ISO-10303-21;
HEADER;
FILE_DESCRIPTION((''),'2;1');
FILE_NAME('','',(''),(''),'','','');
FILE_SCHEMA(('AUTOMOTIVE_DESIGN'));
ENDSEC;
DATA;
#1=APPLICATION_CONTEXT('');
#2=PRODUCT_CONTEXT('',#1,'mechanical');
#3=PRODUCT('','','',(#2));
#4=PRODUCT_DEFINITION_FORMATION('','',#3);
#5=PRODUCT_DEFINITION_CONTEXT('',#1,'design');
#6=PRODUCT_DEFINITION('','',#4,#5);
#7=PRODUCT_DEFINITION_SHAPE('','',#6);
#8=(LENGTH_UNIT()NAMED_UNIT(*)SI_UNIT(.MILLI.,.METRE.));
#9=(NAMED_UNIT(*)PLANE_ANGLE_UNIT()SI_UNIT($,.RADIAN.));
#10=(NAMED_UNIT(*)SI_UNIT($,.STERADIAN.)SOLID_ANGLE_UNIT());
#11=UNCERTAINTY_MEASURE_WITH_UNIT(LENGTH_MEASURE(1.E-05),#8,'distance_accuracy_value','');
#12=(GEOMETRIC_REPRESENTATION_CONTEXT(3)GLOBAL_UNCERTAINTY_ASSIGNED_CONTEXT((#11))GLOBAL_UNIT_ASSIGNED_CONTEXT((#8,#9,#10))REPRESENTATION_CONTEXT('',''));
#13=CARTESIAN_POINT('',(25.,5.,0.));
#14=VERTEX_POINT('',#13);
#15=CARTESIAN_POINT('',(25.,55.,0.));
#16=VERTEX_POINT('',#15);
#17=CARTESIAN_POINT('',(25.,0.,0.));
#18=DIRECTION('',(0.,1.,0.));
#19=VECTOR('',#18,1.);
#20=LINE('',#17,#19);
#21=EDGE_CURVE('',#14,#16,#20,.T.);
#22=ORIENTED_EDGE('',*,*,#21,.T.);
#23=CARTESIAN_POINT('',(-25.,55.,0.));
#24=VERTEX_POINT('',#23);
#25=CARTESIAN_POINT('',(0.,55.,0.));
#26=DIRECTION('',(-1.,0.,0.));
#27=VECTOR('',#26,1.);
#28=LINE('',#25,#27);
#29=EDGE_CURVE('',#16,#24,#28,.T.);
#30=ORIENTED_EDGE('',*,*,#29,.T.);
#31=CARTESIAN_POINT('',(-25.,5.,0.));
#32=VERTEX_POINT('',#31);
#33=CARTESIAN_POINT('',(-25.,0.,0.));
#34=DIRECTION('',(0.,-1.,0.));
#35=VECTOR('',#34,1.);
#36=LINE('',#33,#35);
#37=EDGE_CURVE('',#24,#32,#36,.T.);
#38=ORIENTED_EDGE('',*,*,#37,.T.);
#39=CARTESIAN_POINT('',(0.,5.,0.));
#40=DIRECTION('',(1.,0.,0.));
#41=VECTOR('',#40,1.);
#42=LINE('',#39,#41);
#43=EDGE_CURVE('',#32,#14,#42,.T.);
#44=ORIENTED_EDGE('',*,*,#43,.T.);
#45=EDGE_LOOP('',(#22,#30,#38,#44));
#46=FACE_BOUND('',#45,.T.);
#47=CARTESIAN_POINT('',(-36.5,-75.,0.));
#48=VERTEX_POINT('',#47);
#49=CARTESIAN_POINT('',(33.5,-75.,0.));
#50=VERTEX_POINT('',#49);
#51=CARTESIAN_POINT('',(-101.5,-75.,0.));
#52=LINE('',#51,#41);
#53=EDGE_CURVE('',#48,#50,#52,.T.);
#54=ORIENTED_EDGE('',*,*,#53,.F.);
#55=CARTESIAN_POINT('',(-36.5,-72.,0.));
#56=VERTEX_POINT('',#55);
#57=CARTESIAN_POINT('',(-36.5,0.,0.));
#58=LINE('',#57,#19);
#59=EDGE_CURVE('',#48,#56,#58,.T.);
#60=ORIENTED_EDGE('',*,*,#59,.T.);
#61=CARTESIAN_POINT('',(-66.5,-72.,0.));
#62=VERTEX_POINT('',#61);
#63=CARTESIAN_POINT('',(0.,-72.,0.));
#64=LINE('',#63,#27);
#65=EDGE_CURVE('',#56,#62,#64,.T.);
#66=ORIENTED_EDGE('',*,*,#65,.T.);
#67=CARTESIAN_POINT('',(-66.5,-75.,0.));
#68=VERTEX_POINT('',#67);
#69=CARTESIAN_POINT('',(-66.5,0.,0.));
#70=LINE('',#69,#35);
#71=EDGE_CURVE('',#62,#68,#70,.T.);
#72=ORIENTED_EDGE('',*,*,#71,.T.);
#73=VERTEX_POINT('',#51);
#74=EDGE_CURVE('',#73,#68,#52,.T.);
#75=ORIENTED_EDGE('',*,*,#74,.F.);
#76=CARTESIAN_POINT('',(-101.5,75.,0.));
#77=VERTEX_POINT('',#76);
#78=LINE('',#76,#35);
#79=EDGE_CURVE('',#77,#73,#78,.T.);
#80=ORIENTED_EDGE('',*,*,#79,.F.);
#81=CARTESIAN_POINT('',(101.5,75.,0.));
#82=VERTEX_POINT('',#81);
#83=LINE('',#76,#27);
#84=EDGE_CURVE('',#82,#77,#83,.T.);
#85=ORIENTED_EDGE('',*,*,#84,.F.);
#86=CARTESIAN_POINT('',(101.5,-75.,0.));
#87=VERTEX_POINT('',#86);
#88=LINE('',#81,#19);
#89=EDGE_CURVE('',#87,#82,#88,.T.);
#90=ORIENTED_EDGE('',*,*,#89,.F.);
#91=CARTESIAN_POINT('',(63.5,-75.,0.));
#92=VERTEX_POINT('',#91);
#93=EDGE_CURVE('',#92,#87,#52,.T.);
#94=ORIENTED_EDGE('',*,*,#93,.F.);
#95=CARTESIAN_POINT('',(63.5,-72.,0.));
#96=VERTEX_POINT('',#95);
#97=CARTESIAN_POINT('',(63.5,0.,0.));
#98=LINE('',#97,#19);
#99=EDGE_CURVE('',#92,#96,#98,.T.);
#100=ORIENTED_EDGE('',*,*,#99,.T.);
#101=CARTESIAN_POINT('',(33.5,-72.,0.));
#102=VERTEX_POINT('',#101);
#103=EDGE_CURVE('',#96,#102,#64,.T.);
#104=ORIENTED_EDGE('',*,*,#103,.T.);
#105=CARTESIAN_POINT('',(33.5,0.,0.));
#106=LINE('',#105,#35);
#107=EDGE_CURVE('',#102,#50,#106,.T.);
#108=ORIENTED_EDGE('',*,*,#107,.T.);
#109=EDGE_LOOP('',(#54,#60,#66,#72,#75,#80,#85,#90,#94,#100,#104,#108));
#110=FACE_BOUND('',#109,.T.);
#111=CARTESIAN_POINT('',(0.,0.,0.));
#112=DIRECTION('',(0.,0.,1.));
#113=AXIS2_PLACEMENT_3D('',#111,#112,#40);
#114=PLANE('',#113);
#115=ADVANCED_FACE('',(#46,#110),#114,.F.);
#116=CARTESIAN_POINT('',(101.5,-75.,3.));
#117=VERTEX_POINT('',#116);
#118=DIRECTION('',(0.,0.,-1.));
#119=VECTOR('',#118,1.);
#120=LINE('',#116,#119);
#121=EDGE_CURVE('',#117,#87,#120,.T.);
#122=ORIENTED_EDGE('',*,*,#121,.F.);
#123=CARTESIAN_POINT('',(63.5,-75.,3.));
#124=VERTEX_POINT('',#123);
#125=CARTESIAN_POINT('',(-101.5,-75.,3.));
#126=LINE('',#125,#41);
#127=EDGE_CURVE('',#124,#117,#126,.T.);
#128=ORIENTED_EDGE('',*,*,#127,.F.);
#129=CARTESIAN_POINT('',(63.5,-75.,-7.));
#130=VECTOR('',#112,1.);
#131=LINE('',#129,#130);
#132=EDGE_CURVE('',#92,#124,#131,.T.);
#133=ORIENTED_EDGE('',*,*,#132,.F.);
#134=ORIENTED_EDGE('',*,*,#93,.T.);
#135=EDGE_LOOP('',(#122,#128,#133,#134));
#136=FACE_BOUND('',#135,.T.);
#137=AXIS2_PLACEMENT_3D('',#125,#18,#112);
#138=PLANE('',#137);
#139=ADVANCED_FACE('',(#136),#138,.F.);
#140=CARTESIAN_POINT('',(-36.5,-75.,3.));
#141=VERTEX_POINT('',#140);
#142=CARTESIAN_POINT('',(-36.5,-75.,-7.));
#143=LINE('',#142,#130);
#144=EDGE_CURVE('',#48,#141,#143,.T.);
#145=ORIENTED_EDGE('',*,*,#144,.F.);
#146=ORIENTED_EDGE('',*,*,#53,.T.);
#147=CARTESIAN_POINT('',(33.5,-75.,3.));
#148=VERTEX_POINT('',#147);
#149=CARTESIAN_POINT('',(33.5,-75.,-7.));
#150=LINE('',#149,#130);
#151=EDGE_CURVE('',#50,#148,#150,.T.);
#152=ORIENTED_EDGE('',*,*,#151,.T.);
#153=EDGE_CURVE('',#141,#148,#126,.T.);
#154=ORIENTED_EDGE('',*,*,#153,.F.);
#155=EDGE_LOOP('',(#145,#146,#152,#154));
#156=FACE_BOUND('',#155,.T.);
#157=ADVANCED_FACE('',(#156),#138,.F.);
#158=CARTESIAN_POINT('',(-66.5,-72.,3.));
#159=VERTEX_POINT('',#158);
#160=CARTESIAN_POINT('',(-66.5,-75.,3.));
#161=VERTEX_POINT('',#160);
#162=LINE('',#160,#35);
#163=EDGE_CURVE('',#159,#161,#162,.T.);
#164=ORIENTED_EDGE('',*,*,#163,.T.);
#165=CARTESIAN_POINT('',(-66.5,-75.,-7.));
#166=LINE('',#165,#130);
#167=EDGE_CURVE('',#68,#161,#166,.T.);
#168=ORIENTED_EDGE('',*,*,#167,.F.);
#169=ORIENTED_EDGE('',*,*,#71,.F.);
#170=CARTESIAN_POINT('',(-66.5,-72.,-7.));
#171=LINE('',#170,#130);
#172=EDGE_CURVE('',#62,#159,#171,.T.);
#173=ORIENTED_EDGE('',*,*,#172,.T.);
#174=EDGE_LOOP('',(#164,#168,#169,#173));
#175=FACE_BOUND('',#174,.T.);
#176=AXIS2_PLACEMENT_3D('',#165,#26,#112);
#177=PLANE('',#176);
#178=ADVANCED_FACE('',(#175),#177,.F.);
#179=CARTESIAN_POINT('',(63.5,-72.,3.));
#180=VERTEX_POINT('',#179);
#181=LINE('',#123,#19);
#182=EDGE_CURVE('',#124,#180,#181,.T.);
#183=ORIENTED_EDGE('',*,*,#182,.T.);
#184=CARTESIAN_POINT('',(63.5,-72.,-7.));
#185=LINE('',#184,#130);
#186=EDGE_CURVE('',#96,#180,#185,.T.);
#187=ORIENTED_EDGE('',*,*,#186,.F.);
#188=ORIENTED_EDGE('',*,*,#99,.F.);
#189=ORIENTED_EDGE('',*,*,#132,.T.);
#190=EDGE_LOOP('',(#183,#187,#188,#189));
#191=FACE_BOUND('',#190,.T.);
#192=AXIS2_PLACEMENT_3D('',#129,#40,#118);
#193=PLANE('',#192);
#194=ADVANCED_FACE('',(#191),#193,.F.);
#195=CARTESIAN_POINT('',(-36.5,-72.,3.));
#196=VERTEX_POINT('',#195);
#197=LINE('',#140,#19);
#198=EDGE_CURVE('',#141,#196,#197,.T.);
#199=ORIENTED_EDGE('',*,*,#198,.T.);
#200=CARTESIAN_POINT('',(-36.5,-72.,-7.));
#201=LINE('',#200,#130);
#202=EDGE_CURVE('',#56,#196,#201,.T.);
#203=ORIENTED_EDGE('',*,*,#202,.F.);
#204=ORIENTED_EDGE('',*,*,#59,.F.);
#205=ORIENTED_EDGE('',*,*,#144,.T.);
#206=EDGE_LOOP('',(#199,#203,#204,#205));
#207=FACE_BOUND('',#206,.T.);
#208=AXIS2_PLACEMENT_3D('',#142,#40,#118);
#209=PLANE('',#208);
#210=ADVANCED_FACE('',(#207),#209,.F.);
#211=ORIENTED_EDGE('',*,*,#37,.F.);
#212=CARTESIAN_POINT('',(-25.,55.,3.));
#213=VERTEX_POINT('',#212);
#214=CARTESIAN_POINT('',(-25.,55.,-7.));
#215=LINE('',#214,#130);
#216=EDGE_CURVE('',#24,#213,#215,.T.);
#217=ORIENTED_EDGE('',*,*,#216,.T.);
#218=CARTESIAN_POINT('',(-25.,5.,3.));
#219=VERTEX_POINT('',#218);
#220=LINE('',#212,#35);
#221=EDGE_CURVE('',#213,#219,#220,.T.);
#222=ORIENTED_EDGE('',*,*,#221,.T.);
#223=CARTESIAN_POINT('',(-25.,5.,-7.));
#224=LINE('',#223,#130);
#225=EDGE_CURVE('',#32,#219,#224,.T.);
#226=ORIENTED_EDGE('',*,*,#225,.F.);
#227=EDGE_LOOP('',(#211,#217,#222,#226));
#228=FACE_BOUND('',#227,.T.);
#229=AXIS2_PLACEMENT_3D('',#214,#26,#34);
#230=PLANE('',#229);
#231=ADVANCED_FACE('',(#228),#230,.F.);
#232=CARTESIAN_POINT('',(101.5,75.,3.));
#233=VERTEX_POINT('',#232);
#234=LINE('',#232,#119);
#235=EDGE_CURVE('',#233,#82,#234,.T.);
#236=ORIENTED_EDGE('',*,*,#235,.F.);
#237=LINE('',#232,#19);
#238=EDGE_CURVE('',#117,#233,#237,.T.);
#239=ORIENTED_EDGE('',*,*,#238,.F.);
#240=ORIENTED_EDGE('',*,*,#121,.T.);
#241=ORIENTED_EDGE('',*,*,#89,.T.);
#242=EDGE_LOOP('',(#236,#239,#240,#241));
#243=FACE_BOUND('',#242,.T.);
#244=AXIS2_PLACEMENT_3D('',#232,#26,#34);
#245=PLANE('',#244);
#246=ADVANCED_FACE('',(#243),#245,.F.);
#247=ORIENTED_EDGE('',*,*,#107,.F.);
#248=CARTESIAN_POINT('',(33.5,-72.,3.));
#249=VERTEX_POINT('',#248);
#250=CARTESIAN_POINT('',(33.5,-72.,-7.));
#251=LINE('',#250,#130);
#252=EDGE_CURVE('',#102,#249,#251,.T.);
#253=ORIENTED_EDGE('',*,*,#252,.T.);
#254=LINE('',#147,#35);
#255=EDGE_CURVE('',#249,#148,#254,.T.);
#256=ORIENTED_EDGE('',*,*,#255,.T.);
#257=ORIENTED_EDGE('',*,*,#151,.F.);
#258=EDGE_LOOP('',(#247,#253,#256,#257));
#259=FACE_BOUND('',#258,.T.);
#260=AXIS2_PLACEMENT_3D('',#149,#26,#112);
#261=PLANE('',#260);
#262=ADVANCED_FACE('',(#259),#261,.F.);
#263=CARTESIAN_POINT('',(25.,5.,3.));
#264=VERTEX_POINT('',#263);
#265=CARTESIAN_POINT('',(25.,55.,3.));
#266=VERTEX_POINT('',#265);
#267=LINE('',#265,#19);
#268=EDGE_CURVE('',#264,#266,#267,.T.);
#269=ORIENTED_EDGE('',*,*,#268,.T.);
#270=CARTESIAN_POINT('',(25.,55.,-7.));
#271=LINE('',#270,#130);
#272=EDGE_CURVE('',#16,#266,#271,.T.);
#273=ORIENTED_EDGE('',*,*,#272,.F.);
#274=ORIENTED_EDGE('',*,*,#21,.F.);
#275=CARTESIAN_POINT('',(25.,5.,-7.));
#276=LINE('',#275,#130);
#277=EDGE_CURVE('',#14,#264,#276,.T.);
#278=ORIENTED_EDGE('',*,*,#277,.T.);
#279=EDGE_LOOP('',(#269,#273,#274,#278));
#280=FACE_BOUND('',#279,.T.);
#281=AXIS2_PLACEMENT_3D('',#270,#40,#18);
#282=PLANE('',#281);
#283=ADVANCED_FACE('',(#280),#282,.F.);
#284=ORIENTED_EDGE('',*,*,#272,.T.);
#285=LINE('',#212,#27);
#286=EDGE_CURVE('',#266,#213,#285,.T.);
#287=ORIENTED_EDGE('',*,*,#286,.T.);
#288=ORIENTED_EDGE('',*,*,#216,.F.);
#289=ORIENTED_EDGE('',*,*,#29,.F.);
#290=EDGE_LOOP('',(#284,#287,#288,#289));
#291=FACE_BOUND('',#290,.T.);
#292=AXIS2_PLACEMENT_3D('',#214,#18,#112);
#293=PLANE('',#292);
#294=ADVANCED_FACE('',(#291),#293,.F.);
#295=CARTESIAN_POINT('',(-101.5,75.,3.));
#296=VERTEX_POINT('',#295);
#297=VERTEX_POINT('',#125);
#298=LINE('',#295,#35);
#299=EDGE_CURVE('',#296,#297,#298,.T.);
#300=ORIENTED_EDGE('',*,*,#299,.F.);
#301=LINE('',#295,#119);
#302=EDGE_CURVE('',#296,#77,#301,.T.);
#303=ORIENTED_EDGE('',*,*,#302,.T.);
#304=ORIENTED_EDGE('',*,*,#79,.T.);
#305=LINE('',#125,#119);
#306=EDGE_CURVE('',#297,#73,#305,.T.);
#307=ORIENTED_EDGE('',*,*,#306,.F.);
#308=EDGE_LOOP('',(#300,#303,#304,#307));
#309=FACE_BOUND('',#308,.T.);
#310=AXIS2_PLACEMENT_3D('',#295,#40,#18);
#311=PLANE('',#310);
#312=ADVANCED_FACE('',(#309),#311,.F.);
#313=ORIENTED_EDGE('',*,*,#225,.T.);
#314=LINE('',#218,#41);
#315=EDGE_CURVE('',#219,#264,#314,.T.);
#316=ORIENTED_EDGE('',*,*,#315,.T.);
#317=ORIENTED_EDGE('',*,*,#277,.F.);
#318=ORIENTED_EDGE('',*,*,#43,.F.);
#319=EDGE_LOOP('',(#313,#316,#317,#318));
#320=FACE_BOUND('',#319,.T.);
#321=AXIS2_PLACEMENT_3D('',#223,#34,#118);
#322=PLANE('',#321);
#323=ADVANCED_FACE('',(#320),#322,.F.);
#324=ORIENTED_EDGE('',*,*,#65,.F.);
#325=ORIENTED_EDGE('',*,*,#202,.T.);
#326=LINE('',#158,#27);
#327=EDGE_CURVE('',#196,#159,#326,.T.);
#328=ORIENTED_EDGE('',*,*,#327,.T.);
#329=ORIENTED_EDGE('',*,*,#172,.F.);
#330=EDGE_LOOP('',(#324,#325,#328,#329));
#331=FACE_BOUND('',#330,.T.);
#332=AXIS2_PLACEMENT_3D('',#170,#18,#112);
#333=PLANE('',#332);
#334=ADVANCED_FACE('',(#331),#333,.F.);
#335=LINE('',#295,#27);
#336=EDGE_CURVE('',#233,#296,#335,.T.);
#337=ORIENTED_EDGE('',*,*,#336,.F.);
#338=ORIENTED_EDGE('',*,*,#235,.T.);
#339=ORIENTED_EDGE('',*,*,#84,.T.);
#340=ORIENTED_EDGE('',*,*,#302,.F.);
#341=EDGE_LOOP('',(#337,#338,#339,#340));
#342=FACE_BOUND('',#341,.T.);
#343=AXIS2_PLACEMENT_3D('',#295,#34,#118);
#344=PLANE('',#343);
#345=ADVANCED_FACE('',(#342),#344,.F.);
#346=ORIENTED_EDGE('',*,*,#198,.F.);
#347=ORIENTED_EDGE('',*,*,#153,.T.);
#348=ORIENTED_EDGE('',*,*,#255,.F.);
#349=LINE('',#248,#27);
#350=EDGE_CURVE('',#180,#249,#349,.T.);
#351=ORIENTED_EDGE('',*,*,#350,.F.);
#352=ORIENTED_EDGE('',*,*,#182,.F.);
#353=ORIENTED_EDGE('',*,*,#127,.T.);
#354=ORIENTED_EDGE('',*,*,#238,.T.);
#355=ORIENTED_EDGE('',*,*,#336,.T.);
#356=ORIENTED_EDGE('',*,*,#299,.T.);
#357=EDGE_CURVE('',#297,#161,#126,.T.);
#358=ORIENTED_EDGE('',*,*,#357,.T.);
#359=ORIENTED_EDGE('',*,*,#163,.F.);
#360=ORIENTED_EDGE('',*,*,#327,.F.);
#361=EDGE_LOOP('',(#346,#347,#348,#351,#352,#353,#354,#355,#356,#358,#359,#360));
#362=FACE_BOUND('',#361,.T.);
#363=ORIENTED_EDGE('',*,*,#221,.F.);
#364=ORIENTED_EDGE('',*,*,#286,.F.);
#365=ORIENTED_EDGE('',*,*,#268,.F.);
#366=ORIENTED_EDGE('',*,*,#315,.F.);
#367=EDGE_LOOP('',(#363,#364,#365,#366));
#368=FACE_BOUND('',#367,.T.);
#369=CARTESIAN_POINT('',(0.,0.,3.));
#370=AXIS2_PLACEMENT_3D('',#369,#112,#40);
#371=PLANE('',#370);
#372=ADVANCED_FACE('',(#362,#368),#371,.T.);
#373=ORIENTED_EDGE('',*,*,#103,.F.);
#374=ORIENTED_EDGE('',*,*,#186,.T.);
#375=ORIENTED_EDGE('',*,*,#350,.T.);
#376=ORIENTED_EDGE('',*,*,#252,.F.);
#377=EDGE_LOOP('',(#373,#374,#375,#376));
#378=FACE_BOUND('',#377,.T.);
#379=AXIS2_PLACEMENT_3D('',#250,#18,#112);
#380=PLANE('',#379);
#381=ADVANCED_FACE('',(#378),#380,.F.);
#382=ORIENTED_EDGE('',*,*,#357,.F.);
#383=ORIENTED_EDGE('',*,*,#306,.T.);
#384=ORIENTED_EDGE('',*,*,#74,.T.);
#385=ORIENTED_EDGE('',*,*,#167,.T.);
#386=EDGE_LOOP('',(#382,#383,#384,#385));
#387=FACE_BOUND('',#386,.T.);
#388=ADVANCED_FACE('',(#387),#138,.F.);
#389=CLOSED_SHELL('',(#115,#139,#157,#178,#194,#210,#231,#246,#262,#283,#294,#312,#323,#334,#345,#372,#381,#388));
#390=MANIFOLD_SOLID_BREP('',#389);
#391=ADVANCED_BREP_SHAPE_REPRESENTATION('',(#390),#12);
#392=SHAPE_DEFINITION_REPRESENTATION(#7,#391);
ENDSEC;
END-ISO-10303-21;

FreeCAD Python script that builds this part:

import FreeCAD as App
import Part
import Sketcher

doc = App.newDocument("Part")
body = doc.addObject("PartDesign::Body", "Body")

# Sketch on XY plane
sketch1 = doc.addObject("Sketcher::SketchObject", "Sketch")
body.addObject(sketch1)
sketch1.AttachmentSupport = (doc.XY_Plane, [""])
sketch1.MapMode = "FlatFace"
sketch1.addGeometry(Part.LineSegment(App.Vector(-102, 75, 0), App.Vector(-102, -75, 0)), False)
sketch1.addGeometry(Part.LineSegment(App.Vector(-102, -75, 0), App.Vector(102, -75, 0)), False)
sketch1.addGeometry(Part.LineSegment(App.Vector(102, -75, 0), App.Vector(102, 75, 0)), False)
sketch1.addGeometry(Part.LineSegment(App.Vector(102, 75, 0), App.Vector(-102, 75, 0)), False)
sketch1.addConstraint(Sketcher.Constraint("Coincident", 0, 2, 1, 1))
sketch1.addConstraint(Sketcher.Constraint("Coincident", 1, 2, 2, 1))
sketch1.addConstraint(Sketcher.Constraint("Coincident", 2, 2, 3, 1))
sketch1.addConstraint(Sketcher.Constraint("Coincident", 3, 2, 0, 1))
sketch1.addConstraint(Sketcher.Constraint("Vertical", 0))
sketch1.addConstraint(Sketcher.Constraint("Horizontal", 1))
sketch1.addConstraint(Sketcher.Constraint("Vertical", 2))
sketch1.addConstraint(Sketcher.Constraint("Horizontal", 3))
sketch1.addConstraint(Sketcher.Constraint("Symmetric", 0, 2, 2, 2, -1, 1))
sketch1.addConstraint(Sketcher.Constraint("DistanceX", 1, 1, 1, 2, 203.0))
sketch1.addConstraint(Sketcher.Constraint("DistanceY", 0, 2, 0, 1, 150.0))
pad1 = doc.addObject("PartDesign::Pad", "Pad")
body.addObject(pad1)
pad1.Profile = sketch1
pad1.Length = 3

# Sketch on XY plane
sketch2 = doc.addObject("Sketcher::SketchObject", "Sketch001")
body.addObject(sketch2)
sketch2.AttachmentSupport = (doc.XY_Plane, [""])
sketch2.MapMode = "FlatFace"
sketch2.AttachmentOffset = App.Placement(App.Vector(0, 0, 3), App.Rotation())
sketch2.addGeometry(Part.LineSegment(App.Vector(-25, 55, 0), App.Vector(-25, 5, 0)), False)
sketch2.addGeometry(Part.LineSegment(App.Vector(-25, 5, 0), App.Vector(25, 5, 0)), False)
sketch2.addGeometry(Part.LineSegment(App.Vector(25, 5, 0), App.Vector(25, 55, 0)), False)
sketch2.addGeometry(Part.LineSegment(App.Vector(25, 55, 0), App.Vector(-25, 55, 0)), False)
sketch2.addConstraint(Sketcher.Constraint("Coincident", 0, 2, 1, 1))
sketch2.addConstraint(Sketcher.Constraint("Coincident", 1, 2, 2, 1))
sketch2.addConstraint(Sketcher.Constraint("Coincident", 2, 2, 3, 1))
sketch2.addConstraint(Sketcher.Constraint("Coincident", 3, 2, 0, 1))
sketch2.addConstraint(Sketcher.Constraint("Vertical", 0))
sketch2.addConstraint(Sketcher.Constraint("Horizontal", 1))
sketch2.addConstraint(Sketcher.Constraint("Vertical", 2))
sketch2.addConstraint(Sketcher.Constraint("Horizontal", 3))
sketch2.addConstraint(Sketcher.Constraint("Equal", 3, 0))
sketch2.addConstraint(Sketcher.Constraint("DistanceX", 1, 1, 1, 2, 50.0))
sketch2.addConstraint(Sketcher.Constraint("DistanceX", 0, 2, -1, 1, 25.0))
sketch2.addConstraint(Sketcher.Constraint("DistanceY", -1, 1, 0, 2, 5.0))
pocket1 = doc.addObject("PartDesign::Pocket", "Pocket")
body.addObject(pocket1)
pocket1.Profile = sketch2
pocket1.Length = 10

# Sketch on XY plane
sketch3 = doc.addObject("Sketcher::SketchObject", "Sketch002")
body.addObject(sketch3)
sketch3.AttachmentSupport = (doc.XY_Plane, [""])
sketch3.MapMode = "FlatFace"
sketch3.AttachmentOffset = App.Placement(App.Vector(0, 0, 3), App.Rotation())
sketch3.addGeometry(Part.LineSegment(App.Vector(-66.5, -72, 0), App.Vector(-66.5, -75, 0)), False)
sketch3.addGeometry(Part.LineSegment(App.Vector(-66.5, -75, 0), App.Vector(-36.5, -75, 0)), False)
sketch3.addGeometry(Part.LineSegment(App.Vector(-36.5, -75, 0), App.Vector(-36.5, -72, 0)), False)
sketch3.addGeometry(Part.LineSegment(App.Vector(-36.5, -72, 0), App.Vector(-66.5, -72, 0)), False)
sketch3.addGeometry(Part.LineSegment(App.Vector(33.5, -72, 0), App.Vector(33.5, -75, 0)), False)
sketch3.addGeometry(Part.LineSegment(App.Vector(33.5, -75, 0), App.Vector(63.5, -75, 0)), False)
sketch3.addGeometry(Part.LineSegment(App.Vector(63.5, -75, 0), App.Vector(63.5, -72, 0)), False)
sketch3.addGeometry(Part.LineSegment(App.Vector(63.5, -72, 0), App.Vector(33.5, -72, 0)), False)
sketch3.addConstraint(Sketcher.Constraint("Coincident", 0, 2, 1, 1))
sketch3.addConstraint(Sketcher.Constraint("Coincident", 1, 2, 2, 1))
sketch3.addConstraint(Sketcher.Constraint("Coincident", 2, 2, 3, 1))
sketch3.addConstraint(Sketcher.Constraint("Coincident", 3, 2, 0, 1))
sketch3.addConstraint(Sketcher.Constraint("Coincident", 4, 2, 5, 1))
sketch3.addConstraint(Sketcher.Constraint("Coincident", 5, 2, 6, 1))
sketch3.addConstraint(Sketcher.Constraint("Coincident", 6, 2, 7, 1))
sketch3.addConstraint(Sketcher.Constraint("Coincident", 7, 2, 4, 1))
sketch3.addConstraint(Sketcher.Constraint("Vertical", 0))
sketch3.addConstraint(Sketcher.Constraint("Horizontal", 1))
sketch3.addConstraint(Sketcher.Constraint("Vertical", 2))
sketch3.addConstraint(Sketcher.Constraint("Horizontal", 3))
sketch3.addConstraint(Sketcher.Constraint("Vertical", 4))
sketch3.addConstraint(Sketcher.Constraint("Horizontal", 5))
sketch3.addConstraint(Sketcher.Constraint("Vertical", 6))
sketch3.addConstraint(Sketcher.Constraint("Horizontal", 7))
sketch3.addConstraint(Sketcher.Constraint("Horizontal", 1, 2, 4, 2))
sketch3.addConstraint(Sketcher.Constraint("Horizontal", 3, 2, 6, 2))
sketch3.addConstraint(Sketcher.Constraint("Equal", 3, 5))
sketch3.addConstraint(Sketcher.Constraint("DistanceX", 1, 1, 1, 2, 30.0))
sketch3.addConstraint(Sketcher.Constraint("DistanceY", 0, 2, 0, 1, 3.0))
sketch3.addConstraint(Sketcher.Constraint("DistanceY", 0, 2, -1, 1, 75.0))
sketch3.addConstraint(Sketcher.Constraint("DistanceX", 1, 2, 4, 2, 70.0))
sketch3.addConstraint(Sketcher.Constraint("DistanceX", 0, 2, -1, 1, 66.5))
pocket2 = doc.addObject("PartDesign::Pocket", "Pocket001")
body.addObject(pocket2)
pocket2.Profile = sketch3
pocket2.Length = 10

doc.recompute()
